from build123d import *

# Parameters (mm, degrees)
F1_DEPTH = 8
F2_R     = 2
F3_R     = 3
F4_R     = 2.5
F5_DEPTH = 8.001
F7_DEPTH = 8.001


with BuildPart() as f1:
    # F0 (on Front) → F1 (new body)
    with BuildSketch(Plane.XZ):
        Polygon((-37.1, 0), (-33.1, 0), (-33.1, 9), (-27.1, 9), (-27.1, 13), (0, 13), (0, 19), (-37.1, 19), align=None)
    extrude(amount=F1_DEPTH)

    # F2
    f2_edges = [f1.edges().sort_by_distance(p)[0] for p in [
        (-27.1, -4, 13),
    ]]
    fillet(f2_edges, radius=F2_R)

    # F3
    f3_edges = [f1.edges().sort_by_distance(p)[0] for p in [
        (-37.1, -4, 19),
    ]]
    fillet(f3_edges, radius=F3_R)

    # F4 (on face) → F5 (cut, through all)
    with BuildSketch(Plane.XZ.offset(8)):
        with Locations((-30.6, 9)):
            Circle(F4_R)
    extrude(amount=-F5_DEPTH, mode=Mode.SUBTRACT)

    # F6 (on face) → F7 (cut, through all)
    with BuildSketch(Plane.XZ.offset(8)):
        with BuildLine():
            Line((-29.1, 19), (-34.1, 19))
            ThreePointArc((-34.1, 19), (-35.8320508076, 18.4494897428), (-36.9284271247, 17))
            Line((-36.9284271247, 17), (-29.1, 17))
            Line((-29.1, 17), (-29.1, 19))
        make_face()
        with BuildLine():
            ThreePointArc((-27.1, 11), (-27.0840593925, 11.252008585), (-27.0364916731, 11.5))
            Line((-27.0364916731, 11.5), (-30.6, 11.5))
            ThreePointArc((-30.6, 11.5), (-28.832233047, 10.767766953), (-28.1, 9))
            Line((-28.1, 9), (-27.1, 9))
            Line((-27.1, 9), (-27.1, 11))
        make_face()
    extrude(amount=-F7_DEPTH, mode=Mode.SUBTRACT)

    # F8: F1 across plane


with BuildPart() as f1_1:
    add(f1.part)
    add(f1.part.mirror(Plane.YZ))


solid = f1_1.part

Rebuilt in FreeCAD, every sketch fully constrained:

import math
import FreeCAD as App
import Part
import Sketcher
Q = App.Units.Quantity


def edges_at(feature, points):
    """Names of the edges that pass closest to the given points."""
    edges = feature.Shape.Edges
    near = lambda p: min(range(len(edges)), key=lambda i: edges[i].distToShape(Part.Vertex(*p))[0])
    return sorted({f"Edge{near(p) + 1}" for p in points})

doc = App.newDocument("Part")
params = doc.addObject("Spreadsheet::Sheet", "Params")
for row, (alias, value) in enumerate([
    ("sketch1_width", "4 mm"),
    ("sketch1_width2", "6 mm"),
    ("sketch1_height", "9 mm"),
    ("sketch1_width3", "27.1 mm"),
    ("pad1_length", "8 mm"),
    ("fillet_radius", "2 mm"),
    ("fillet2_radius", "3 mm"),
    ("sketch2_diameter", "5 mm"),
    ("sketch3_radius", "3 mm"),
    ("sketch3_radius2", "2 mm"),
    ("sketch3_radius3", "2.5 mm"),
    ("sketch3_width", "5 mm"),
    ("sketch3_width2", "1 mm"),
], start=1):
    params.set(f"A{row}", alias)
    params.set(f"B{row}", "=" + value)
    params.setAlias(f"B{row}", alias)

body = doc.addObject("PartDesign::Body", "Body")

sketch1 = doc.addObject("Sketcher::SketchObject", "Sketch")
body.addObject(sketch1)
sketch1.AttachmentSupport = (doc.XZ_Plane, [""])
sketch1.MapMode = "FlatFace"
sketch1.addGeometry([
    Part.LineSegment(App.Vector(-37.1, 0, 0), App.Vector(-33.1, 0, 0)),
    Part.LineSegment(App.Vector(-33.1, 0, 0), App.Vector(-33.1, 9, 0)),
    Part.LineSegment(App.Vector(-33.1, 9, 0), App.Vector(-27.1, 9, 0)),
    Part.LineSegment(App.Vector(-27.1, 9, 0), App.Vector(-27.1, 13, 0)),
    Part.LineSegment(App.Vector(-27.1, 13, 0), App.Vector(0, 13, 0)),
    Part.LineSegment(App.Vector(0, 13, 0), App.Vector(0, 19, 0)),
    Part.LineSegment(App.Vector(0, 19, 0), App.Vector(-37.1, 19, 0)),
    Part.LineSegment(App.Vector(-37.1, 19, 0), App.Vector(-37.1, 0, 0)),
], False)
sketch1.addConstraint([
    Sketcher.Constraint("Coincident", 0, 2, 1, 1),
    Sketcher.Constraint("Coincident", 1, 2, 2, 1),
    Sketcher.Constraint("Coincident", 2, 2, 3, 1),
    Sketcher.Constraint("Coincident", 3, 2, 4, 1),
    Sketcher.Constraint("Coincident", 4, 2, 5, 1),
    Sketcher.Constraint("Coincident", 5, 2, 6, 1),
    Sketcher.Constraint("Coincident", 6, 2, 7, 1),
    Sketcher.Constraint("Coincident", 7, 2, 0, 1),
    Sketcher.Constraint("Horizontal", 0),
    Sketcher.Constraint("Vertical", 1),
    Sketcher.Constraint("Horizontal", 2),
    Sketcher.Constraint("Vertical", 3),
    Sketcher.Constraint("Horizontal", 4),
    Sketcher.Constraint("Vertical", 5),
    Sketcher.Constraint("Horizontal", 6),
    Sketcher.Constraint("Vertical", 7),
    Sketcher.Constraint("PointOnObject", 0, 2, -1),
    Sketcher.Constraint("PointOnObject", 4, 2, -2),
    Sketcher.Constraint("Equal", 0, 3),
    Sketcher.Constraint("Equal", 2, 5),
    Sketcher.Constraint("DistanceX", 0, 1, 0, 2, Q("4 mm")),
    Sketcher.Constraint("DistanceX", 2, 1, 2, 2, Q("6 mm")),
    Sketcher.Constraint("DistanceY", 1, 1, 1, 2, Q("9 mm")),
    Sketcher.Constraint("DistanceX", 4, 1, 4, 2, Q("27.1 mm")),
])
sketch1.setExpression("Constraints[20]", "Params.sketch1_width")
sketch1.setExpression("Constraints[21]", "Params.sketch1_width2")
sketch1.setExpression("Constraints[22]", "Params.sketch1_height")
sketch1.setExpression("Constraints[23]", "Params.sketch1_width3")
pad1 = doc.addObject("PartDesign::Pad", "Pad")
body.addObject(pad1)
pad1.Profile = sketch1
pad1.setExpression("Length", "Params.pad1_length")
doc.recompute()

fillet = doc.addObject("PartDesign::Fillet", "Fillet")
body.addObject(fillet)
fillet.Base = (pad1, edges_at(pad1, [(-27.1, -4, 13)]))
fillet.setExpression("Radius", "Params.fillet_radius")
doc.recompute()

fillet2 = doc.addObject("PartDesign::Fillet", "Fillet001")
body.addObject(fillet2)
fillet2.Base = (fillet, edges_at(fillet, [(-37.1, -4, 19)]))
fillet2.setExpression("Radius", "Params.fillet2_radius")

sketch2 = doc.addObject("Sketcher::SketchObject", "Sketch001")
body.addObject(sketch2)
sketch2.AttachmentSupport = (doc.XZ_Plane, [""])
sketch2.MapMode = "FlatFace"
sketch2.AttachmentOffset = App.Placement(App.Vector(0, 0, 8), App.Rotation())
sketch2.addGeometry(Part.Circle(App.Vector(-30.6, 9, 0), App.Vector(0, 0, 1), 2.5), False)
sketch2.addConstraint([
    Sketcher.Constraint("Diameter", 0, Q("5 mm")),
    Sketcher.Constraint("DistanceY", -1, 1, 0, 3, Q("9 mm")),
    Sketcher.Constraint("DistanceX", 0, 3, -1, 1, Q("30.6 mm")),
])
sketch2.setExpression("Constraints[0]", "Params.sketch2_diameter")
pocket1 = doc.addObject("PartDesign::Pocket", "Pocket")
body.addObject(pocket1)
pocket1.Profile = sketch2
pocket1.Type = "ThroughAll"

sketch3 = doc.addObject("Sketcher::SketchObject", "Sketch002")
body.addObject(sketch3)
sketch3.AttachmentSupport = (doc.XZ_Plane, [""])
sketch3.MapMode = "FlatFace"
sketch3.AttachmentOffset = App.Placement(App.Vector(0, 0, 8), App.Rotation())
sketch3.addGeometry([
    Part.LineSegment(App.Vector(-29.1, 19, 0), App.Vector(-34.1, 19, 0)),
    Part.ArcOfCircle(Part.Circle(App.Vector(-34.1, 16, 0), App.Vector(0, 0, 1), 3), math.radians(90), math.radians(161)),
    Part.LineSegment(App.Vector(-36.9, 17, 0), App.Vector(-29.1, 17, 0)),
    Part.LineSegment(App.Vector(-29.1, 17, 0), App.Vector(-29.1, 19, 0)),
    Part.ArcOfCircle(Part.Circle(App.Vector(-25.1, 11, 0), App.Vector(0, 0, 1), 2), math.radians(165.52), math.radians(180)),
    Part.LineSegment(App.Vector(-27, 11.5, 0), App.Vector(-30.6, 11.5, 0)),
    Part.ArcOfCircle(Part.Circle(App.Vector(-30.6, 9, 0), App.Vector(0, 0, 1), 2.5), math.radians(0), math.radians(90)),
    Part.LineSegment(App.Vector(-28.1, 9, 0), App.Vector(-27.1, 9, 0)),
    Part.LineSegment(App.Vector(-27.1, 9, 0), App.Vector(-27.1, 11, 0)),
], False)
sketch3.addConstraint([
    Sketcher.Constraint("Tangent", 0, 2, 1, 1),
    Sketcher.Constraint("Coincident", 1, 2, 2, 1),
    Sketcher.Constraint("Coincident", 2, 2, 3, 1),
    Sketcher.Constraint("Coincident", 3, 2, 0, 1),
    Sketcher.Constraint("Coincident", 4, 1, 5, 1),
    Sketcher.Constraint("Tangent", 5, 2, 6, 2),
    Sketcher.Constraint("Coincident", 6, 1, 7, 1),
    Sketcher.Constraint("Coincident", 7, 2, 8, 1),
    Sketcher.Constraint("Tangent", 8, 2, 4, 2),
    Sketcher.Constraint("Horizontal", 0),
    Sketcher.Constraint("Horizontal", 2),
    Sketcher.Constraint("Vertical", 3),
    Sketcher.Constraint("Horizontal", 5),
    Sketcher.Constraint("Horizontal", 7),
    Sketcher.Constraint("Vertical", 8),
    Sketcher.Constraint("Equal", 3, 8),
    Sketcher.Constraint("Radius", 1, Q("3 mm")),
    Sketcher.Constraint("Radius", 4, Q("2 mm")),
    Sketcher.Constraint("Radius", 6, Q("2.5 mm")),
    Sketcher.Constraint("DistanceX", 0, 2, 0, 1, Q("5 mm")),
    Sketcher.Constraint("DistanceX", 7, 1, 7, 2, Q("1 mm")),
    Sketcher.Constraint("DistanceY", 3, 1, 3, 2, Q("2 mm")),
    Sketcher.Constraint("DistanceY", -1, 1, 1, 3, Q("16 mm")),
    Sketcher.Constraint("DistanceY", -1, 1, 4, 3, Q("11 mm")),
    Sketcher.Constraint("DistanceY", -1, 1, 6, 3, Q("9 mm")),
    Sketcher.Constraint("DistanceX", 1, 3, 4, 3, Q("9 mm")),
    Sketcher.Constraint("DistanceX", 1, 3, -1, 1, Q("34.1 mm")),
])
sketch3.setExpression("Constraints[16]", "Params.sketch3_radius")
sketch3.setExpression("Constraints[17]", "Params.sketch3_radius2")
sketch3.setExpression("Constraints[18]", "Params.sketch3_radius3")
sketch3.setExpression("Constraints[19]", "Params.sketch3_width")
sketch3.setExpression("Constraints[20]", "Params.sketch3_width2")
pocket2 = doc.addObject("PartDesign::Pocket", "Pocket001")
body.addObject(pocket2)
pocket2.Profile = sketch3
pocket2.Type = "ThroughAll"
body2 = doc.addObject("PartDesign::Body", "Body001")
doc.recompute()

body2.BaseFeature = body
doc.recompute()

mirroring = doc.addObject("Part::Mirroring", "Mirroring")
mirroring.Source = body
mirroring.Base = App.Vector(0, 0, 0)
mirroring.Normal = App.Vector(1, 0, 0)
body3 = doc.addObject("PartDesign::Body", "Body002")
body3.BaseFeature = mirroring
boolean = doc.addObject("PartDesign::Boolean", "Boolean")
body2.addObject(boolean)
boolean.Type = "Fuse"
boolean.addObjects([body3])
doc.recompute()
mirroring.Visibility = False

doc.recompute()
